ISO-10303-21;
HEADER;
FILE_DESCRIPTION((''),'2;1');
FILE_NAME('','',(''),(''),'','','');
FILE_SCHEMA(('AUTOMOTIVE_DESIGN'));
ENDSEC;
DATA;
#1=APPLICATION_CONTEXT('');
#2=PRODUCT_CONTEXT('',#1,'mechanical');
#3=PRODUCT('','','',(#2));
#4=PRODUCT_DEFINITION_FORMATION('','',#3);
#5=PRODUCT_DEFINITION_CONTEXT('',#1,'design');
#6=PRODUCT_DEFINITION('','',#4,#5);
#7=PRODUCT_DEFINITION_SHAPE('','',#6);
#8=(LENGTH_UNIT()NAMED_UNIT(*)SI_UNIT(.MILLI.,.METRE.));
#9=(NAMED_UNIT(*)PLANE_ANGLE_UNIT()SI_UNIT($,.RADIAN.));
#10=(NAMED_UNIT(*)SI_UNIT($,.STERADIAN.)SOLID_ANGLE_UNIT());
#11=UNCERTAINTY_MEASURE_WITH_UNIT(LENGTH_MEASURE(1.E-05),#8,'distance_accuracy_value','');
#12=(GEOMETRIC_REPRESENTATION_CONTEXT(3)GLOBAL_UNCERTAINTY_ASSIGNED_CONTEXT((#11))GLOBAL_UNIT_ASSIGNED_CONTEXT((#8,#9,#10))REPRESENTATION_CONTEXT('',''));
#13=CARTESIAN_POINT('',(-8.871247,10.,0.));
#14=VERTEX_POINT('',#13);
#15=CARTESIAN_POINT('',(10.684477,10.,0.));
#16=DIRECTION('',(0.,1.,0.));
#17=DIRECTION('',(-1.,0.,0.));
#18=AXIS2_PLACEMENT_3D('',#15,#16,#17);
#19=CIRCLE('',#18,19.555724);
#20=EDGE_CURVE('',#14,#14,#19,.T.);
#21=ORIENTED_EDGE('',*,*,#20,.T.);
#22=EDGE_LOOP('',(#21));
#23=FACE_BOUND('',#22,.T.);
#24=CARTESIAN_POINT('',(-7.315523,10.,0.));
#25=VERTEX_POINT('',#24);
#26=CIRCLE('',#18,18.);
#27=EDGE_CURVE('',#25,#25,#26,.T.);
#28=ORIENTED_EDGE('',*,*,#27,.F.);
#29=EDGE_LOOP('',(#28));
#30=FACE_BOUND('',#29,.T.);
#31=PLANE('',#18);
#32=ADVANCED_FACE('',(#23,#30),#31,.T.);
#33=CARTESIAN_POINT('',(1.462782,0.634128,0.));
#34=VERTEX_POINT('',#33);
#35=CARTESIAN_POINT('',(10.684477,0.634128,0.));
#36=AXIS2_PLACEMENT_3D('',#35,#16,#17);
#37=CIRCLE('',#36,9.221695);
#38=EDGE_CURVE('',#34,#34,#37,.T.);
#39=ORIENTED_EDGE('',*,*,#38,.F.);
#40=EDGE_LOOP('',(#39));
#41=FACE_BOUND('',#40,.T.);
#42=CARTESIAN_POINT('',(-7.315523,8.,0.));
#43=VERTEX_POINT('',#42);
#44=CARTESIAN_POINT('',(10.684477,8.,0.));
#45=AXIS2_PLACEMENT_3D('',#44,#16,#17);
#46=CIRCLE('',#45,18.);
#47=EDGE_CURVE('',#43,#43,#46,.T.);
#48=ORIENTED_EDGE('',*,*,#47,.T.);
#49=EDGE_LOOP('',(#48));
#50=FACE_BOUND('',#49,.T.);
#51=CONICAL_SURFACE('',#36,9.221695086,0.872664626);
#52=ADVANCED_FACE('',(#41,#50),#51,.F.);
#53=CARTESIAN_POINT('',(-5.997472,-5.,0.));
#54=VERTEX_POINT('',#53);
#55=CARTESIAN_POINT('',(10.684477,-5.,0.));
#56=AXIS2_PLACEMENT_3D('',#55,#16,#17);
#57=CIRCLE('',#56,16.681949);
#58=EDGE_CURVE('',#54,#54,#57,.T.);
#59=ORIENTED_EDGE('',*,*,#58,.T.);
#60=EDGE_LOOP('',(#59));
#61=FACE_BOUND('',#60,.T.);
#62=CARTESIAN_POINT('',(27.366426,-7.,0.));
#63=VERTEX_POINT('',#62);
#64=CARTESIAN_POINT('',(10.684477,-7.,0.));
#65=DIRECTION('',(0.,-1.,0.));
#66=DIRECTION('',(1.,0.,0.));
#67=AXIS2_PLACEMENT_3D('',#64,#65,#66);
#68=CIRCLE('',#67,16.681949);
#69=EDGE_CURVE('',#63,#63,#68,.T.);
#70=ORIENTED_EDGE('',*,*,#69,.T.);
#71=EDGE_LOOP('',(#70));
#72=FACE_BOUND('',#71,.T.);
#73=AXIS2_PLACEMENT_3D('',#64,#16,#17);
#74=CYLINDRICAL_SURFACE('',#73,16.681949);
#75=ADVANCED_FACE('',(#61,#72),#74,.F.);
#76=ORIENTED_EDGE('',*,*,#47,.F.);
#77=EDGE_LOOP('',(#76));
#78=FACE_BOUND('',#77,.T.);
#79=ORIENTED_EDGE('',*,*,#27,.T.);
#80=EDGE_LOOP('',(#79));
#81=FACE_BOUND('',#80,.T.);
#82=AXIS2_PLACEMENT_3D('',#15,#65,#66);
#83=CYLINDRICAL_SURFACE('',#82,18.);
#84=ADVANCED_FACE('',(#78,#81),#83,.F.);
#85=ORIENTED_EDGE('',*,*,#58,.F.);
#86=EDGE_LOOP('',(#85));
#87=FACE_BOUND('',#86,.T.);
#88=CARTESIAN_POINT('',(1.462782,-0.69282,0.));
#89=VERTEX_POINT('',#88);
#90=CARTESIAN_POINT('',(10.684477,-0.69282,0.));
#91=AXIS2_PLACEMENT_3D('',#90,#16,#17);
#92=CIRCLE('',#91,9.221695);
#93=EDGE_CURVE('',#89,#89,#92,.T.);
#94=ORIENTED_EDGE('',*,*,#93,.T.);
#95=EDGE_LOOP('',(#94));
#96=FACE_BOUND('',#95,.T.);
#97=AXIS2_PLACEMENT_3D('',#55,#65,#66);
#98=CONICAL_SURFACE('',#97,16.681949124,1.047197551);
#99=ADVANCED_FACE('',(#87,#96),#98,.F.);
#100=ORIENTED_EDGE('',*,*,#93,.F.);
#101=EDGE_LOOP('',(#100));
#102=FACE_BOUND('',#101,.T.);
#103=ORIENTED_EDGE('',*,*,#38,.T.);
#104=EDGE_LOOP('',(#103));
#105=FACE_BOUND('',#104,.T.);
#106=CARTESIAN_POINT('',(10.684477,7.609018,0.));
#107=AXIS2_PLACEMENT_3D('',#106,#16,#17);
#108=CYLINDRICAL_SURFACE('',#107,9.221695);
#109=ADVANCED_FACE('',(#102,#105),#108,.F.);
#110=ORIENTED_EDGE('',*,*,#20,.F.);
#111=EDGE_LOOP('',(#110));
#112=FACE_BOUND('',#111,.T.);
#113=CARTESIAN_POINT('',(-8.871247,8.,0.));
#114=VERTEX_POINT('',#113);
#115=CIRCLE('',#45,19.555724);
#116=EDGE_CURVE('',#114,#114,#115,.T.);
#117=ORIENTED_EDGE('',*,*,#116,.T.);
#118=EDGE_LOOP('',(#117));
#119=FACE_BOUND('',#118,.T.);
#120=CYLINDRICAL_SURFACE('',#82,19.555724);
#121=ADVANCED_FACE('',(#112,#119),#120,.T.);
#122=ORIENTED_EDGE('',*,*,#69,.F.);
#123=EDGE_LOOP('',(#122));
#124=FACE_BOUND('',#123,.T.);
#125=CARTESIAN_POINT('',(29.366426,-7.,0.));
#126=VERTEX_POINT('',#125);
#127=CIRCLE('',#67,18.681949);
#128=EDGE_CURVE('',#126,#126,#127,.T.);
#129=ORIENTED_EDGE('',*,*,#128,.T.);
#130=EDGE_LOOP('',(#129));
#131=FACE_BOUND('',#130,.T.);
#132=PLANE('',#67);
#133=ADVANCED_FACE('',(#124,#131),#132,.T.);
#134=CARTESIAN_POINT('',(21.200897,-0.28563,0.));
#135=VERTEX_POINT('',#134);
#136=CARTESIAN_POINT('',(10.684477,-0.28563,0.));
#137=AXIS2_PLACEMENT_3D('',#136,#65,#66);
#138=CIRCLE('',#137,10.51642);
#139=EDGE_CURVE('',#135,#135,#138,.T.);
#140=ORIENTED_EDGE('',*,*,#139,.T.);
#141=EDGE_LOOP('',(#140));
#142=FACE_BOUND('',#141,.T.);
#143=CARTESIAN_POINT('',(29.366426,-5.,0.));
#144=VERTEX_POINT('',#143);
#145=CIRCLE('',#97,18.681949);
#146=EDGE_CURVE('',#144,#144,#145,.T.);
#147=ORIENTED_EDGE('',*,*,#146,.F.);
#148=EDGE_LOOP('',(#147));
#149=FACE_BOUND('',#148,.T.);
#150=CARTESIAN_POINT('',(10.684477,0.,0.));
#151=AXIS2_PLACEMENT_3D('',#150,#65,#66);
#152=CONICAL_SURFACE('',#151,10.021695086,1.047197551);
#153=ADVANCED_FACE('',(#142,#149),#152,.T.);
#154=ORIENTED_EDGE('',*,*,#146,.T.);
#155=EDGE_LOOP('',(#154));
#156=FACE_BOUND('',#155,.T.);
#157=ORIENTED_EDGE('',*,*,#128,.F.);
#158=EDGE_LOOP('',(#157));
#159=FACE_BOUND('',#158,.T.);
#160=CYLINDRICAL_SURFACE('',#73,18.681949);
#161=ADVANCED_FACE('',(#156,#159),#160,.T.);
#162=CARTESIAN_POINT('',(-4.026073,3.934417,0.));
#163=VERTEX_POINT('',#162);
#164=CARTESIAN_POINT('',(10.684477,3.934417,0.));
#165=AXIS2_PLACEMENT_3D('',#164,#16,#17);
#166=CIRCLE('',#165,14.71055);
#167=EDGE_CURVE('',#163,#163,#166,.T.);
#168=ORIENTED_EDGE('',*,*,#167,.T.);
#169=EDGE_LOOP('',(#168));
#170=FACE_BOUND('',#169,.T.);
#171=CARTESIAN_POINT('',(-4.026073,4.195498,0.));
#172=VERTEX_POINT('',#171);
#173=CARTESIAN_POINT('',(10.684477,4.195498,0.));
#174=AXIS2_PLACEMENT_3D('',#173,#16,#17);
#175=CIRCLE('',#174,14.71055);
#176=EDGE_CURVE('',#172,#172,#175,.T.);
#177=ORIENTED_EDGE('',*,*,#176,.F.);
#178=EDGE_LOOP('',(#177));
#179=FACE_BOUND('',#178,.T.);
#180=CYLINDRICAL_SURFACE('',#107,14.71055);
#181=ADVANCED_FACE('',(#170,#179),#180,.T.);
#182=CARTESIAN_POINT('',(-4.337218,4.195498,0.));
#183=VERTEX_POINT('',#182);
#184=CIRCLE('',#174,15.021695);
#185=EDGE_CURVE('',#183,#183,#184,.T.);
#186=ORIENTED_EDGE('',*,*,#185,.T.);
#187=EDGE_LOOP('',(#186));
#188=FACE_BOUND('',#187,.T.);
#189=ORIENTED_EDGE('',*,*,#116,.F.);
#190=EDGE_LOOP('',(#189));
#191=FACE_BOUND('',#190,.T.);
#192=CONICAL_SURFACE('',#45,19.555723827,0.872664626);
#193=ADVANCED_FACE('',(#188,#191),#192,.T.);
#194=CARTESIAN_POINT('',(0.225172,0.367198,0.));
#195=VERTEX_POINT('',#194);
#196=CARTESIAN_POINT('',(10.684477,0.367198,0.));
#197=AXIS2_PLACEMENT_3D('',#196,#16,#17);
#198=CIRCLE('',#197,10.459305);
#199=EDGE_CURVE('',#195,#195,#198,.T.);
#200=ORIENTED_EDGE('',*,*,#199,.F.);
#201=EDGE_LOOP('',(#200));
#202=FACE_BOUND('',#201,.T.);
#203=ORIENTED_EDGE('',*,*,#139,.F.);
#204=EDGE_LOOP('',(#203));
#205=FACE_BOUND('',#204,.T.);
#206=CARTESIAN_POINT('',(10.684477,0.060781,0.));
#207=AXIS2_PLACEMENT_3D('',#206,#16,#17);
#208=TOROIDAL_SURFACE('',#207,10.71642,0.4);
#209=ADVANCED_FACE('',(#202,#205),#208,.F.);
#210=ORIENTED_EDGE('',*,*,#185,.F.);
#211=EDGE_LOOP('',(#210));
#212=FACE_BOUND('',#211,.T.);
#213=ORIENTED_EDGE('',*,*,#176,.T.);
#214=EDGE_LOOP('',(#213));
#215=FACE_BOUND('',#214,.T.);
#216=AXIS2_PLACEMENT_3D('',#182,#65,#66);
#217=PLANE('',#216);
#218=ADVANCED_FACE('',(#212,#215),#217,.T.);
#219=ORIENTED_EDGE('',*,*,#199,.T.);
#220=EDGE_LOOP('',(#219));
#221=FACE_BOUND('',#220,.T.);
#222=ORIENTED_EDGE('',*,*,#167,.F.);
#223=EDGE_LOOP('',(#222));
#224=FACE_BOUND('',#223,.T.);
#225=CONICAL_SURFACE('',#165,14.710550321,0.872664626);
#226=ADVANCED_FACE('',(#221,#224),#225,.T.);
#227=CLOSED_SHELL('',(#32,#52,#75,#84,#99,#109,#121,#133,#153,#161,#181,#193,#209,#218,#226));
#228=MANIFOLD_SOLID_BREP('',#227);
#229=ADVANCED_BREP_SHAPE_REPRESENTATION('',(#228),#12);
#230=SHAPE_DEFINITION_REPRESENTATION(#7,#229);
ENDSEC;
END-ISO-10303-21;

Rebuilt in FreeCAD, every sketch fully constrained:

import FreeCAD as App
import Part
import Sketcher
from FreeCAD import Vector
Q = App.Units.Quantity


def edges_at(feature, points):
    """Names of the edges that pass closest to the given points."""
    edges = feature.Shape.Edges
    near = lambda p: min(range(len(edges)), key=lambda i: edges[i].distToShape(Part.Vertex(*p))[0])
    return sorted({f"Edge{near(p) + 1}" for p in points})

doc = App.newDocument("Part")
body = doc.addObject("PartDesign::Body", "Body")

sketch1 = body.newObject("Sketcher::SketchObject", "Sketch")
sketch1.AttachmentSupport = (doc.getObject("XY_Plane"), [""])
sketch1.MapMode = "FlatFace"
sketch1.addGeometry([
    Part.LineSegment(Vector(-4.03, 3.93, 0), Vector(0.66, 0, 0)),
    Part.LineSegment(Vector(0.66, 0, 0), Vector(-8, -5, 0)),
    Part.LineSegment(Vector(-8, -5, 0), Vector(-6, -5, 0)),
    Part.LineSegment(Vector(-6, -5, 0), Vector(1.46, -0.69, 0)),
    Part.LineSegment(Vector(1.46, -0.69, 0), Vector(1.46, 0.63, 0)),
    Part.LineSegment(Vector(1.46, 0.63, 0), Vector(-7.32, 8, 0)),
    Part.LineSegment(Vector(-7.32, 8, 0), Vector(-8.87, 8, 0)),
    Part.LineSegment(Vector(-8.87, 8, 0), Vector(-4.34, 4.2, 0)),
    Part.LineSegment(Vector(-4.34, 4.2, 0), Vector(-4.03, 4.2, 0)),
    Part.LineSegment(Vector(-4.03, 4.2, 0), Vector(-4.03, 3.93, 0)),
], False)
sketch1.addGeometry(Part.LineSegment(Vector(10.68, 8, 0), Vector(10.68, -5, 0)), True)
sketch1.addConstraint([
    Sketcher.Constraint("Coincident", 0, 2, 1, 1),
    Sketcher.Constraint("Coincident", 1, 2, 2, 1),
    Sketcher.Constraint("Coincident", 2, 2, 3, 1),
    Sketcher.Constraint("Coincident", 3, 2, 4, 1),
    Sketcher.Constraint("Coincident", 4, 2, 5, 1),
    Sketcher.Constraint("Coincident", 5, 2, 6, 1),
    Sketcher.Constraint("Coincident", 6, 2, 7, 1),
    Sketcher.Constraint("Coincident", 7, 2, 8, 1),
    Sketcher.Constraint("Coincident", 8, 2, 9, 1),
    Sketcher.Constraint("Coincident", 9, 2, 0, 1),
    Sketcher.Constraint("Horizontal", 2),
    Sketcher.Constraint("Vertical", 4),
    Sketcher.Constraint("Horizontal", 6),
    Sketcher.Constraint("Horizontal", 8),
    Sketcher.Constraint("Vertical", 9),
    Sketcher.Constraint("Vertical", 10),
    Sketcher.Constraint("PointOnObject", 0, 2, -1),
    Sketcher.Constraint("Parallel", 1, 3),
    Sketcher.Constraint("Parallel", 0, 5),
    Sketcher.Constraint("Parallel", 5, 7),
    Sketcher.Constraint("Horizontal", 6, 2, 10, 1),
    Sketcher.Constraint("Horizontal", 2, 2, 10, 2),
    Sketcher.Constraint("DistanceX", 2, 1, 2, 2, 2.0),
    Sketcher.Constraint("DistanceY", 10, 2, 10, 1, 13.0),
    Sketcher.Constraint("Angle", 0, Q("-40 deg")),
    Sketcher.Constraint("Angle", 1, Q("-150 deg")),
    Sketcher.Constraint("Distance", 1, 10.0),
    Sketcher.Constraint("DistanceX", 7, 2, 0, 2, 5.0),
    Sketcher.Constraint("DistanceX", 0, 2, 3, 2, 0.8),
    Sketcher.Constraint("DistanceY", 9, 2, 9, 1, 0.261081),
    Sketcher.Constraint("DistanceY", -1, 1, 7, 2, 4.195498),
    Sketcher.Constraint("DistanceX", 6, 2, 6, 1, 1.555724),
    Sketcher.Constraint("DistanceX", -1, 1, 0, 2, 0.662782),
    Sketcher.Constraint("DistanceX", 8, 2, 10, 1, 14.71055),
])
revolution = body.newObject("PartDesign::Revolution", "Revolution")
revolution.Profile = sketch1
revolution.ReferenceAxis = (sketch1, ["Axis0"])
revolution.Angle = 360
doc.recompute()

fillet = body.newObject("PartDesign::Fillet", "Fillet")
fillet.Base = (revolution, edges_at(revolution, [(20.706, 0, 0)]))
fillet.Radius = 0.4

sketch2 = body.newObject("Sketcher::SketchObject", "Sketch001")
sketch2.AttachmentSupport = (doc.getObject("XZ_Plane"), [""])
sketch2.MapMode = "FlatFace"
sketch2.AttachmentOffset = App.Placement(Vector(0, 0, -8), App.Rotation())
sketch2.addGeometry([
    Part.Circle(Vector(11, 0, 0), Vector(0, 0, 1), 20),
    Part.Circle(Vector(11, 0, 0), Vector(0, 0, 1), 18),
], False)
sketch2.addConstraint([
    Sketcher.Constraint("Coincident", 1, 3, 0, 3),
    Sketcher.Constraint("PointOnObject", 0, 3, -1),
    Sketcher.Constraint("Diameter", 1, 36.0),
    Sketcher.Constraint("Diameter", 0, 39.111448),
    Sketcher.Constraint("DistanceX", -1, 1, 0, 3, 10.684477),
])
pad1 = body.newObject("PartDesign::Pad", "Pad")
pad1.Profile = sketch2
pad1.Length = 2
pad1.Reversed = True

sketch3 = body.newObject("Sketcher::SketchObject", "Sketch002")
sketch3.AttachmentSupport = (doc.getObject("XZ_Plane"), [""])
sketch3.MapMode = "FlatFace"
sketch3.AttachmentOffset = App.Placement(Vector(0, 0, 5), App.Rotation())
sketch3.addGeometry([
    Part.Circle(Vector(11, 0, 0), Vector(0, 0, 1), 19),
    Part.Circle(Vector(11, 0, 0), Vector(0, 0, 1), 17),
], False)
sketch3.addConstraint([
    Sketcher.Constraint("Coincident", 1, 3, 0, 3),
    Sketcher.Constraint("PointOnObject", 0, 3, -1),
    Sketcher.Constraint("Diameter", 0, 37.363898),
    Sketcher.Constraint("Diameter", 1, 33.363898),
    Sketcher.Constraint("DistanceX", -1, 1, 0, 3, 10.684477),
])
pad2 = body.newObject("PartDesign::Pad", "Pad001")
pad2.Profile = sketch3
pad2.Length = 2

doc.recompute()
